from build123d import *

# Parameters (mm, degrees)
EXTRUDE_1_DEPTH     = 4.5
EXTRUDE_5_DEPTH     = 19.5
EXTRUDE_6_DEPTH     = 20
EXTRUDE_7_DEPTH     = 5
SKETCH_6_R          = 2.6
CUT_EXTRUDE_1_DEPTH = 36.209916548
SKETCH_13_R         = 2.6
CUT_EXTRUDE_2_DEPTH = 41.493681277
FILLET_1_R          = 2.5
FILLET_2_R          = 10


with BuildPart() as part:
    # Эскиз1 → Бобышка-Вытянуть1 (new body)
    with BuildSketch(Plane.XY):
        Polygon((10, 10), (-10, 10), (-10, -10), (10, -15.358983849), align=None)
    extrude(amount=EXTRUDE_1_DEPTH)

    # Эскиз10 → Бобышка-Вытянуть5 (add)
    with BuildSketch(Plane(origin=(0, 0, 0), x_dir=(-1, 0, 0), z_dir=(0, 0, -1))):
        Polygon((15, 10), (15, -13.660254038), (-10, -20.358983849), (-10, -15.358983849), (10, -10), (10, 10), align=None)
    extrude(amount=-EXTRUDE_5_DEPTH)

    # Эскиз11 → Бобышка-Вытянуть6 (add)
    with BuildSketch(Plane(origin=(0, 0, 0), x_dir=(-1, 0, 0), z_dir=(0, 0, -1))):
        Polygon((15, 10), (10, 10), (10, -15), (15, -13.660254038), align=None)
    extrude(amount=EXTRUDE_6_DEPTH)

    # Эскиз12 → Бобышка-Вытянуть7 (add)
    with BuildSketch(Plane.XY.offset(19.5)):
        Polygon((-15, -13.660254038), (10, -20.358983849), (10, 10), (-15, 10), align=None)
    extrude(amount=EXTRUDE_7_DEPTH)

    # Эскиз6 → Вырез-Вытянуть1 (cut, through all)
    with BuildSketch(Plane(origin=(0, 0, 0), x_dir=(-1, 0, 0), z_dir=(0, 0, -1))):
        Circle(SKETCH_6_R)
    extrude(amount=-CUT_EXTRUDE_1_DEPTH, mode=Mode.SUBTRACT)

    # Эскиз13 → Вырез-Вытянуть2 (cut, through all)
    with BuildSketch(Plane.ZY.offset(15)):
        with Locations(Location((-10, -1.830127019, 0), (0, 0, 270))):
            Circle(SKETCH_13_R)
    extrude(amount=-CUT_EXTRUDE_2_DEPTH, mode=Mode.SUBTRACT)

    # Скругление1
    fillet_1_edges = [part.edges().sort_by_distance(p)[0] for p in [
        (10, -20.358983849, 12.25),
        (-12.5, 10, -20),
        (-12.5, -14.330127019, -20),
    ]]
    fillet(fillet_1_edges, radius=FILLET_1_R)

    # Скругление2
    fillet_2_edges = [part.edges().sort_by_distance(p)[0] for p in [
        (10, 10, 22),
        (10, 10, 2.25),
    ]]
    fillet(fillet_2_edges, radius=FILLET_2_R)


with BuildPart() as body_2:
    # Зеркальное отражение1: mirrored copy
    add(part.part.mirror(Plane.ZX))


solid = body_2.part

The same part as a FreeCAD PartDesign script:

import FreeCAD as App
import Part
import Sketcher
Q = App.Units.Quantity


def edges_at(feature, points):
    """Names of the edges that pass closest to the given points."""
    edges = feature.Shape.Edges
    near = lambda p: min(range(len(edges)), key=lambda i: edges[i].distToShape(Part.Vertex(*p))[0])
    return sorted({f"Edge{near(p) + 1}" for p in points})


def add_polygon(sketch, points):
    """Adds a closed chain of lines whose ends are joined by coincident constraints."""
    first, n = sketch.GeometryCount, len(points)
    for a, b in zip(points, points[1:] + points[:1]):
        sketch.addGeometry(Part.LineSegment(App.Vector(*a, 0), App.Vector(*b, 0)), False)
    for i in range(n):
        sketch.addConstraint(Sketcher.Constraint("Coincident", first + i, 2, first + (i + 1) % n, 1))

doc = App.newDocument("Part")
body = doc.addObject("PartDesign::Body", "Body")

# Sketch on XY plane
sketch1 = body.newObject("Sketcher::SketchObject", "Sketch")
sketch1.AttachmentSupport = (doc.getObject("XY_Plane"), [""])
sketch1.MapMode = "FlatFace"
add_polygon(sketch1, [(10, 10), (-10, 10), (-10, -10), (10, -15)])  # lines 0-3
sketch1.addConstraint(Sketcher.Constraint("Horizontal", 0))
sketch1.addConstraint(Sketcher.Constraint("Vertical", 1))
sketch1.addConstraint(Sketcher.Constraint("Vertical", 3))
sketch1.addConstraint(Sketcher.Constraint("Symmetric", 1, 2, 3, 2, -1, 1))
sketch1.addConstraint(Sketcher.Constraint("Equal", 0, 1))
sketch1.addConstraint(Sketcher.Constraint("DistanceX", 0, 2, 0, 1, Q("20 mm")))
sketch1.addConstraint(Sketcher.Constraint("Angle", 2, Q("-15 deg")))
pad1 = body.newObject("PartDesign::Pad", "Pad")
pad1.Profile = sketch1
pad1.Length = 4.5

# Sketch on XY plane
sketch2 = body.newObject("Sketcher::SketchObject", "Sketch001")
sketch2.AttachmentSupport = (doc.getObject("XY_Plane"), [""])
sketch2.MapMode = "FlatFace"
add_polygon(sketch2, [(-15, -14), (-15, 10), (-10, 10), (-10, -10), (10, -15), (10, -20)])  # lines 0-5
sketch2.addConstraint(Sketcher.Constraint("Vertical", 0))
sketch2.addConstraint(Sketcher.Constraint("Horizontal", 1))
sketch2.addConstraint(Sketcher.Constraint("Vertical", 2))
sketch2.addConstraint(Sketcher.Constraint("Vertical", 4))
sketch2.addConstraint(Sketcher.Constraint("Parallel", 3, 5))
sketch2.addConstraint(Sketcher.Constraint("Equal", 1, 4))
sketch2.addConstraint(Sketcher.Constraint("DistanceX", 1, 1, 1, 2, Q("5 mm")))
sketch2.addConstraint(Sketcher.Constraint("DistanceY", 2, 2, 2, 1, Q("20 mm")))
sketch2.addConstraint(Sketcher.Constraint("Angle", 3, Q("-15 deg")))
sketch2.addConstraint(Sketcher.Constraint("DistanceX", 0, 2, -1, 1, Q("15 mm")))
sketch2.addConstraint(Sketcher.Constraint("DistanceY", -1, 1, 0, 2, Q("10 mm")))
sketch2.addConstraint(Sketcher.Constraint("DistanceX", -1, 1, 3, 2, Q("10 mm")))
pad2 = body.newObject("PartDesign::Pad", "Pad001")
pad2.Profile = sketch2
pad2.Length = 19.5

# Sketch on XY plane
sketch3 = body.newObject("Sketcher::SketchObject", "Sketch002")
sketch3.AttachmentSupport = (doc.getObject("XY_Plane"), [""])
sketch3.MapMode = "FlatFace"
add_polygon(sketch3, [(-15, 10), (-10, 10), (-10, -15), (-15, -14)])  # lines 0-3
sketch3.addConstraint(Sketcher.Constraint("Horizontal", 0))
sketch3.addConstraint(Sketcher.Constraint("Vertical", 1))
sketch3.addConstraint(Sketcher.Constraint("Vertical", 3))
sketch3.addConstraint(Sketcher.Constraint("DistanceX", 0, 1, 0, 2, Q("5 mm")))
sketch3.addConstraint(Sketcher.Constraint("DistanceY", 1, 2, 1, 1, Q("25 mm")))
sketch3.addConstraint(Sketcher.Constraint("Angle", 2, Q("165 deg")))
sketch3.addConstraint(Sketcher.Constraint("DistanceX", 0, 2, -1, 1, Q("10 mm")))
sketch3.addConstraint(Sketcher.Constraint("DistanceY", -1, 1, 0, 2, Q("10 mm")))
pad3 = body.newObject("PartDesign::Pad", "Pad002")
pad3.Profile = sketch3
pad3.Length = 20
pad3.Reversed = True

# Sketch on XY plane
sketch4 = body.newObject("Sketcher::SketchObject", "Sketch003")
sketch4.AttachmentSupport = (doc.getObject("XY_Plane"), [""])
sketch4.MapMode = "FlatFace"
sketch4.AttachmentOffset = App.Placement(App.Vector(0, 0, 19.5), App.Rotation())
add_polygon(sketch4, [(-15, -14), (10, -20), (10, 10), (-15, 10)])  # lines 0-3
sketch4.addConstraint(Sketcher.Constraint("Vertical", 1))
sketch4.addConstraint(Sketcher.Constraint("Horizontal", 2))
sketch4.addConstraint(Sketcher.Constraint("Vertical", 3))
sketch4.addConstraint(Sketcher.Constraint("DistanceX", 2, 2, 2, 1, Q("25 mm")))
sketch4.addConstraint(Sketcher.Constraint("Angle", 0, Q("-15 deg")))
sketch4.addConstraint(Sketcher.Constraint("DistanceX", -1, 1, 0, 2, Q("10 mm")))
sketch4.addConstraint(Sketcher.Constraint("DistanceY", -1, 1, 1, 2, Q("10 mm")))
sketch4.addConstraint(Sketcher.Constraint("DistanceY", 1, 1, 1, 2, Q("30.358984 mm")))
pad4 = body.newObject("PartDesign::Pad", "Pad003")
pad4.Profile = sketch4
pad4.Length = 5

# Sketch on XY plane
sketch5 = body.newObject("Sketcher::SketchObject", "Sketch004")
sketch5.AttachmentSupport = (doc.getObject("XY_Plane"), [""])
sketch5.MapMode = "FlatFace"
sketch5.addGeometry(Part.Circle(App.Vector(0, 0, 0), App.Vector(0, 0, 1), 2.6), False)
sketch5.addConstraint(Sketcher.Constraint("Coincident", 0, 3, -1, 1))
sketch5.addConstraint(Sketcher.Constraint("Diameter", 0, Q("5.2 mm")))
pocket1 = body.newObject("PartDesign::Pocket", "Pocket")
pocket1.Profile = sketch5
pocket1.Type = "ThroughAll"
pocket1.Reversed = True

# Sketch on YZ plane
sketch6 = body.newObject("Sketcher::SketchObject", "Sketch005")
sketch6.AttachmentSupport = (doc.getObject("YZ_Plane"), [""])
sketch6.MapMode = "FlatFace"
sketch6.AttachmentOffset = App.Placement(App.Vector(0, 0, -15), App.Rotation())
sketch6.addGeometry(Part.Circle(App.Vector(-1.8, -10, 0), App.Vector(0, 0, 1), 2.6), False)
sketch6.addConstraint(Sketcher.Constraint("Diameter", 0, Q("5.2 mm")))
sketch6.addConstraint(Sketcher.Constraint("DistanceY", 0, 3, -1, 1, Q("10 mm")))
sketch6.addConstraint(Sketcher.Constraint("DistanceX", 0, 3, -1, 1, Q("1.830127 mm")))
pocket2 = body.newObject("PartDesign::Pocket", "Pocket001")
pocket2.Profile = sketch6
pocket2.Type = "ThroughAll"
pocket2.Reversed = True
doc.recompute()

fillet = body.newObject("PartDesign::Fillet", "Fillet")
fillet.Base = (pocket2, edges_at(pocket2, [(10, -20.359, 12.25), (-12.5, 10, -20), (-12.5, -14.33, -20)]))
fillet.Radius = 2.5
doc.recompute()

fillet2 = body.newObject("PartDesign::Fillet", "Fillet001")
fillet2.Base = (fillet, edges_at(fillet, [(10, 10, 22), (10, 10, 2.25)]))
fillet2.Radius = 10
body2 = doc.addObject("PartDesign::Body", "Body001")
doc.recompute()

mirroring = doc.addObject("Part::Mirroring", "Mirroring")
mirroring.Source = body
mirroring.Base = App.Vector(0, 0, 0)
mirroring.Normal = App.Vector(0, 1, 0)
body2.BaseFeature = mirroring
doc.recompute()
body.Visibility = False
mirroring.Visibility = False

doc.recompute()
